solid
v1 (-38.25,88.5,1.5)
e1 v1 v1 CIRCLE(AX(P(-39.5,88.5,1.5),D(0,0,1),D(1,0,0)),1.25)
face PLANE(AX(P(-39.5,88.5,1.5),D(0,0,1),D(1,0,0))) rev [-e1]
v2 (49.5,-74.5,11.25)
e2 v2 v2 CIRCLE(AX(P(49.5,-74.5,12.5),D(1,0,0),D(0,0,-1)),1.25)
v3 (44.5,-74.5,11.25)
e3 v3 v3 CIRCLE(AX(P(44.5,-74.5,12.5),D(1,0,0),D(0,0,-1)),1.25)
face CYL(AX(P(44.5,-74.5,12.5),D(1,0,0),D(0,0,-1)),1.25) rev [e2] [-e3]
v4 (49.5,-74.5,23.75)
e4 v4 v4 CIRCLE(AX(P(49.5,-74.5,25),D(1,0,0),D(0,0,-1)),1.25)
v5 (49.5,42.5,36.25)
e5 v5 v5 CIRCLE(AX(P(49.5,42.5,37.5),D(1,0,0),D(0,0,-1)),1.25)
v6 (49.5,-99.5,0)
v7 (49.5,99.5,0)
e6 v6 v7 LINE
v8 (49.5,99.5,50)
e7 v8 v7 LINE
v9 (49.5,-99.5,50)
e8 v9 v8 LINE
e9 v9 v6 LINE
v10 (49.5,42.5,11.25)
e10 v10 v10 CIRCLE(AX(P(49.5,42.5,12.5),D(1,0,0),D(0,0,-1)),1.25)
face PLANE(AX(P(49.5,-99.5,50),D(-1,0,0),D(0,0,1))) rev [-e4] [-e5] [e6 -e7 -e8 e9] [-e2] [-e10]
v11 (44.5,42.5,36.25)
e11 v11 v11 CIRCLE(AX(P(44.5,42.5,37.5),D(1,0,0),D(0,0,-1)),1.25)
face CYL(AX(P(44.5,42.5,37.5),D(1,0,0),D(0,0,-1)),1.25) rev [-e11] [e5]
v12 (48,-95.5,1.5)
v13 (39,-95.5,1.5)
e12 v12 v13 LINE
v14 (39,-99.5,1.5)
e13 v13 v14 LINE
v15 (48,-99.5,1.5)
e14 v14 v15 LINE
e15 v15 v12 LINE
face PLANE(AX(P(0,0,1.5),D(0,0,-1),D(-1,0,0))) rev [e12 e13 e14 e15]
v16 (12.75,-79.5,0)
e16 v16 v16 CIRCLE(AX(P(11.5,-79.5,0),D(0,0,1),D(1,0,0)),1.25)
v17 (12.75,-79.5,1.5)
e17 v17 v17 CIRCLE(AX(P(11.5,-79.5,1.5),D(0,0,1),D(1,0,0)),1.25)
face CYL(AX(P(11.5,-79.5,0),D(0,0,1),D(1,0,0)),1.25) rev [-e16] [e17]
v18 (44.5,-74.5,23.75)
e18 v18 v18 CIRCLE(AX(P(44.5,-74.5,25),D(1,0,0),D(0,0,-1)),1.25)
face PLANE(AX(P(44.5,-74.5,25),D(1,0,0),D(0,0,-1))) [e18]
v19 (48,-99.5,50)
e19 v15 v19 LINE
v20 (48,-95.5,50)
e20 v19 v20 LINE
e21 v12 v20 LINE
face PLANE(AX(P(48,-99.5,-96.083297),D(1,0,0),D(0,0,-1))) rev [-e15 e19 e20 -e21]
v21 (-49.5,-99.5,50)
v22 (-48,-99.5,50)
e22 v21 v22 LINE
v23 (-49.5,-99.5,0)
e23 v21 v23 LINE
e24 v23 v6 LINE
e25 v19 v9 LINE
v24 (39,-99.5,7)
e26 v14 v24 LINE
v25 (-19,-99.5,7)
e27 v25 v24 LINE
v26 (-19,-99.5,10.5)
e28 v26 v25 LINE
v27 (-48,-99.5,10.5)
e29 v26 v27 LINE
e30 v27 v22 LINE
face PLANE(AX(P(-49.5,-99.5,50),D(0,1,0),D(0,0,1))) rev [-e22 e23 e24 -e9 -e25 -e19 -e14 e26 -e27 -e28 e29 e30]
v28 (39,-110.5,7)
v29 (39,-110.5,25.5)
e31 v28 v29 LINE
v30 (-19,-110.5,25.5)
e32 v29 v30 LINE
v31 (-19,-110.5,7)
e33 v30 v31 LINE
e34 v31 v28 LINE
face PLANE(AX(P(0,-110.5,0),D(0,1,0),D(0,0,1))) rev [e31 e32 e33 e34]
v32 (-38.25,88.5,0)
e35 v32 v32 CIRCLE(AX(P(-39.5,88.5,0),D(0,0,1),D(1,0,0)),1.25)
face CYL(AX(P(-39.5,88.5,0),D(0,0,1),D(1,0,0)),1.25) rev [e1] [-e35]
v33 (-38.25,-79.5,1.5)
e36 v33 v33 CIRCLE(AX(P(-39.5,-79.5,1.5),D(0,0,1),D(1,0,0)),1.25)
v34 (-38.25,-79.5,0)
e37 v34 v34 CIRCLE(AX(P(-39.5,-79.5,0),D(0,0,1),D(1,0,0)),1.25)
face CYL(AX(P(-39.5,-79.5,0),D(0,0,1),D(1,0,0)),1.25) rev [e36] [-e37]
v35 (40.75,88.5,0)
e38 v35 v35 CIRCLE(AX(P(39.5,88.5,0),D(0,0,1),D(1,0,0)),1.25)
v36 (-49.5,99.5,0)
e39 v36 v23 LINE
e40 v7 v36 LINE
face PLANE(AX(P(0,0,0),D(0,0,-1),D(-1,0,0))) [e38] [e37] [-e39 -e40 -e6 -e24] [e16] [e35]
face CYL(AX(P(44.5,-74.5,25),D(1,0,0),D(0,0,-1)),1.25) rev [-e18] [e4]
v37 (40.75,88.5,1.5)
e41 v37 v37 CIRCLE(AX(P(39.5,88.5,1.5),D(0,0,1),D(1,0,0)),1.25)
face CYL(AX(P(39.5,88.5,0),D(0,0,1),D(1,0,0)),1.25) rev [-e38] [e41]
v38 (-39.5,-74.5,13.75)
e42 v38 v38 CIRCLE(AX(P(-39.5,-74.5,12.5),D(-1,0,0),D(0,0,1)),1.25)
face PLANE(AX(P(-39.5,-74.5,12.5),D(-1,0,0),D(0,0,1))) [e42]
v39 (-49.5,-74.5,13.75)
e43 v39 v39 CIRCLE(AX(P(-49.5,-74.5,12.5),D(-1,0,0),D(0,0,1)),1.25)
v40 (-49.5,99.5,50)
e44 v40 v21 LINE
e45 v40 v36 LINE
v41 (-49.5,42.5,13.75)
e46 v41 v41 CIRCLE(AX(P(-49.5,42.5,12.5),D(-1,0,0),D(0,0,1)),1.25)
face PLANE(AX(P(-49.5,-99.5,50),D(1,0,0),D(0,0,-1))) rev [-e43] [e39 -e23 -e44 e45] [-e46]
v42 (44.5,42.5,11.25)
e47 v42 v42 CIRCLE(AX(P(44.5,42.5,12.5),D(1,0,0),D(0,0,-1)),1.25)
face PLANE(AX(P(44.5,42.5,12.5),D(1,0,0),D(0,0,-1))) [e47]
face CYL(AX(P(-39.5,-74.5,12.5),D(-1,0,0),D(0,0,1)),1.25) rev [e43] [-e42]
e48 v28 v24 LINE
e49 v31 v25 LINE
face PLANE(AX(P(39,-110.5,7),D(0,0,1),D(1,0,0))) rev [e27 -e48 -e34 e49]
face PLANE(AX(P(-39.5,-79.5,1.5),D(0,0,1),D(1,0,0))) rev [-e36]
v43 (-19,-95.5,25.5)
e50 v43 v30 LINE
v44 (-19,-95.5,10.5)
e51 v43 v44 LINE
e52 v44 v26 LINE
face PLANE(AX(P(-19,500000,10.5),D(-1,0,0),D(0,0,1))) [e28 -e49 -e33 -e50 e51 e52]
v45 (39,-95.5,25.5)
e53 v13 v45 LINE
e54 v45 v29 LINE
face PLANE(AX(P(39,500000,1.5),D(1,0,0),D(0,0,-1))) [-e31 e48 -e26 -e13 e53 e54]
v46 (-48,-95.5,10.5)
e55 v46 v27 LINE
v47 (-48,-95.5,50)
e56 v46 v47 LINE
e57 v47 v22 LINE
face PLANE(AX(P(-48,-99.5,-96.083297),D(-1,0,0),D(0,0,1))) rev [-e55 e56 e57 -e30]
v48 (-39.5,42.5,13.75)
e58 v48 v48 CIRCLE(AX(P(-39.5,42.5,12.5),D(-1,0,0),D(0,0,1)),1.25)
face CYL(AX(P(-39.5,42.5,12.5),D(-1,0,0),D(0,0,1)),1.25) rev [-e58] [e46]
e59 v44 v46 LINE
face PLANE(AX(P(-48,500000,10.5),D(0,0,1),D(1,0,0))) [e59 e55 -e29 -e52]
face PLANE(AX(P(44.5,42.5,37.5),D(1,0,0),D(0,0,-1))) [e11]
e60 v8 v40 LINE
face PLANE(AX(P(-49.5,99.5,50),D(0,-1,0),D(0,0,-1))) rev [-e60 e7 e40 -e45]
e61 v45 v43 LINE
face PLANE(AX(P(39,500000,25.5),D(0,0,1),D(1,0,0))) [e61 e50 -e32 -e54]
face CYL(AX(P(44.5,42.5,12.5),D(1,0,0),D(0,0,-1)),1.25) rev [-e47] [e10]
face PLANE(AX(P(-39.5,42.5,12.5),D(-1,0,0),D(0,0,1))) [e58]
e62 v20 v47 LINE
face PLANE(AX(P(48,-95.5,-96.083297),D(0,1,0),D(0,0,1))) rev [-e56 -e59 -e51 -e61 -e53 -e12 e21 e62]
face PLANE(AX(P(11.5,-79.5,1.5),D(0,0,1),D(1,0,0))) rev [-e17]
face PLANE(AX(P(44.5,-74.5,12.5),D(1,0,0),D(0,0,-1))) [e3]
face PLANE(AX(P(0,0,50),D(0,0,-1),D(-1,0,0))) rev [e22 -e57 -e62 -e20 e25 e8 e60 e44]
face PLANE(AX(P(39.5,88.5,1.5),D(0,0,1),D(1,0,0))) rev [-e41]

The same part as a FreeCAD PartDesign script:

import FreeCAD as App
import Part
import Sketcher
from FreeCAD import Vector


def add_polygon(sketch, points):
    """Adds a closed chain of lines whose ends are joined by coincident constraints."""
    first, n = sketch.GeometryCount, len(points)
    for a, b in zip(points, points[1:] + points[:1]):
        sketch.addGeometry(Part.LineSegment(App.Vector(*a, 0), App.Vector(*b, 0)), False)
    for i in range(n):
        sketch.addConstraint(Sketcher.Constraint("Coincident", first + i, 2, first + (i + 1) % n, 1))

doc = App.newDocument("Part")
body = doc.addObject("PartDesign::Body", "Body")

# Sketch on XY plane
sketch1 = body.newObject("Sketcher::SketchObject", "Sketch")
sketch1.AttachmentSupport = (doc.getObject("XY_Plane"), [""])
sketch1.MapMode = "FlatFace"
add_polygon(sketch1, [(-50, 100), (-50, -100), (50, -100), (50, 100)])  # lines 0-3
sketch1.addConstraint(Sketcher.Constraint("Vertical", 0))
sketch1.addConstraint(Sketcher.Constraint("Horizontal", 1))
sketch1.addConstraint(Sketcher.Constraint("Vertical", 2))
sketch1.addConstraint(Sketcher.Constraint("Horizontal", 3))
sketch1.addConstraint(Sketcher.Constraint("Symmetric", 0, 2, 2, 2, -1, 1))
sketch1.addConstraint(Sketcher.Constraint("DistanceX", 1, 1, 1, 2, 99.0))
sketch1.addConstraint(Sketcher.Constraint("DistanceY", 0, 2, 0, 1, 199.0))
pad1 = body.newObject("PartDesign::Pad", "Pad")
pad1.Profile = sketch1
pad1.Length = 50

# Sketch on XY plane
sketch2 = body.newObject("Sketcher::SketchObject", "Sketch001")
sketch2.AttachmentSupport = (doc.getObject("XY_Plane"), [""])
sketch2.MapMode = "FlatFace"
sketch2.AttachmentOffset = App.Placement(Vector(0, 0, 50), App.Rotation())
add_polygon(sketch2, [(-48, -95.5), (-48, -99.5), (48, -99.5), (48, -95.5)])  # lines 0-3
sketch2.addConstraint(Sketcher.Constraint("Vertical", 0))
sketch2.addConstraint(Sketcher.Constraint("Horizontal", 1))
sketch2.addConstraint(Sketcher.Constraint("Vertical", 2))
sketch2.addConstraint(Sketcher.Constraint("Horizontal", 3))
sketch2.addConstraint(Sketcher.Constraint("DistanceX", 1, 1, 1, 2, 96.0))
sketch2.addConstraint(Sketcher.Constraint("DistanceY", 0, 2, 0, 1, 4.0))
sketch2.addConstraint(Sketcher.Constraint("DistanceX", 0, 2, -1, 1, 48.0))
sketch2.addConstraint(Sketcher.Constraint("DistanceY", 0, 2, -1, 1, 99.5))
pocket1 = body.newObject("PartDesign::Pocket", "Pocket")
pocket1.Profile = sketch2
pocket1.Length = 48.5

# Sketch on XZ plane
sketch3 = body.newObject("Sketcher::SketchObject", "Sketch002")
sketch3.AttachmentSupport = (doc.getObject("XZ_Plane"), [""])
sketch3.MapMode = "FlatFace"
sketch3.AttachmentOffset = App.Placement(Vector(0, 0, 99.5), App.Rotation())
add_polygon(sketch3, [(-48, 2), (39, 2), (39, 26), (-19, 26), (-19, 10), (-48, 10)])  # lines 0-5
sketch3.addConstraint(Sketcher.Constraint("Horizontal", 0))
sketch3.addConstraint(Sketcher.Constraint("Vertical", 1))
sketch3.addConstraint(Sketcher.Constraint("Horizontal", 2))
sketch3.addConstraint(Sketcher.Constraint("Vertical", 3))
sketch3.addConstraint(Sketcher.Constraint("Horizontal", 4))
sketch3.addConstraint(Sketcher.Constraint("Vertical", 5))
sketch3.addConstraint(Sketcher.Constraint("DistanceX", 0, 1, 0, 2, 87.0))
sketch3.addConstraint(Sketcher.Constraint("DistanceX", 2, 2, 2, 1, 58.0))
sketch3.addConstraint(Sketcher.Constraint("DistanceY", 1, 1, 1, 2, 24.0))
sketch3.addConstraint(Sketcher.Constraint("DistanceY", 3, 2, 3, 1, 15.0))
sketch3.addConstraint(Sketcher.Constraint("DistanceX", -1, 1, 0, 2, 39.0))
sketch3.addConstraint(Sketcher.Constraint("DistanceY", -1, 1, 0, 2, 1.5))
pad2 = body.newObject("PartDesign::Pad", "Pad001")
pad2.Profile = sketch3
pad2.Type = "UpToFirst"
pad2.Reversed = True

# Sketch on XZ plane
sketch4 = body.newObject("Sketcher::SketchObject", "Sketch003")
sketch4.AttachmentSupport = (doc.getObject("XZ_Plane"), [""])
sketch4.MapMode = "FlatFace"
sketch4.AttachmentOffset = App.Placement(Vector(0, 0, 99.5), App.Rotation())
add_polygon(sketch4, [(-19, 26), (-19, 7), (39, 7), (39, 26)])  # lines 0-3
sketch4.addConstraint(Sketcher.Constraint("Vertical", 0))
sketch4.addConstraint(Sketcher.Constraint("Horizontal", 1))
sketch4.addConstraint(Sketcher.Constraint("Vertical", 2))
sketch4.addConstraint(Sketcher.Constraint("Horizontal", 3))
sketch4.addConstraint(Sketcher.Constraint("DistanceX", 1, 1, 1, 2, 58.0))
sketch4.addConstraint(Sketcher.Constraint("DistanceY", 0, 2, 0, 1, 18.5))
sketch4.addConstraint(Sketcher.Constraint("DistanceX", 0, 2, -1, 1, 19.0))
sketch4.addConstraint(Sketcher.Constraint("DistanceY", -1, 1, 0, 2, 7.0))
pad3 = body.newObject("PartDesign::Pad", "Pad002")
pad3.Profile = sketch4
pad3.Length = 11

# Sketch on XY plane
sketch5 = body.newObject("Sketcher::SketchObject", "Sketch004")
sketch5.AttachmentSupport = (doc.getObject("XY_Plane"), [""])
sketch5.MapMode = "FlatFace"
sketch5.AttachmentOffset = App.Placement(Vector(0, 0, 1.5), App.Rotation())
sketch5.addGeometry(Part.Circle(Vector(11.5, -79.5, 0), Vector(0, 0, 1), 1.2), False)
sketch5.addGeometry(Part.Circle(Vector(-39.5, -79.5, 0), Vector(0, 0, 1), 1.2), False)
sketch5.addGeometry(Part.Circle(Vector(-39.5, 88.5, 0), Vector(0, 0, 1), 1.2), False)
sketch5.addGeometry(Part.Circle(Vector(39.5, 88.5, 0), Vector(0, 0, 1), 1.2), False)
sketch5.addConstraint(Sketcher.Constraint("Equal", 0, 1))
sketch5.addConstraint(Sketcher.Constraint("Equal", 1, 2))
sketch5.addConstraint(Sketcher.Constraint("Equal", 2, 3))
sketch5.addConstraint(Sketcher.Constraint("Symmetric", 2, 3, 3, 3, -2))
sketch5.addConstraint(Sketcher.Constraint("Horizontal", 0, 3, 1, 3))
sketch5.addConstraint(Sketcher.Constraint("Vertical", 1, 3, 2, 3))
sketch5.addConstraint(Sketcher.Constraint("Diameter", 0, 2.5))
sketch5.addConstraint(Sketcher.Constraint("DistanceX", 1, 3, 0, 3, 51.0))
sketch5.addConstraint(Sketcher.Constraint("DistanceY", 1, 3, 2, 3, 168.0))
sketch5.addConstraint(Sketcher.Constraint("DistanceX", 2, 3, 3, 3, 79.0))
sketch5.addConstraint(Sketcher.Constraint("DistanceY", 0, 3, -1, 1, 79.5))
pocket2 = body.newObject("PartDesign::Pocket", "Pocket001")
pocket2.Profile = sketch5
pocket2.Type = "ThroughAll"

# Sketch on YZ plane
sketch6 = body.newObject("Sketcher::SketchObject", "Sketch005")
sketch6.AttachmentSupport = (doc.getObject("YZ_Plane"), [""])
sketch6.MapMode = "FlatFace"
sketch6.AttachmentOffset = App.Placement(Vector(0, 0, 49.5), App.Rotation())
sketch6.addGeometry(Part.Circle(Vector(42.5, 37.5, 0), Vector(0, 0, 1), 1.2), False)
sketch6.addGeometry(Part.Circle(Vector(42.5, 12.5, 0), Vector(0, 0, 1), 1.2), False)
sketch6.addGeometry(Part.Circle(Vector(-74.5, 25, 0), Vector(0, 0, 1), 1.2), False)
sketch6.addGeometry(Part.Circle(Vector(-74.5, 12.5, 0), Vector(0, 0, 1), 1.2), False)
sketch6.addConstraint(Sketcher.Constraint("Equal", 0, 1))
sketch6.addConstraint(Sketcher.Constraint("Equal", 1, 2))
sketch6.addConstraint(Sketcher.Constraint("Equal", 2, 3))
sketch6.addConstraint(Sketcher.Constraint("Horizontal", 1, 3, 3, 3))
sketch6.addConstraint(Sketcher.Constraint("Vertical", 0, 3, 1, 3))
sketch6.addConstraint(Sketcher.Constraint("Vertical", 2, 3, 3, 3))
sketch6.addConstraint(Sketcher.Constraint("Diameter", 0, 2.5))
sketch6.addConstraint(Sketcher.Constraint("DistanceY", -1, 1, 2, 3, 25.0))
sketch6.addConstraint(Sketcher.Constraint("DistanceY", 1, 3, 0, 3, 25.0))
sketch6.addConstraint(Sketcher.Constraint("DistanceX", 2, 3, 0, 3, 117.0))
sketch6.addConstraint(Sketcher.Constraint("DistanceX", -1, 1, 0, 3, 42.5))
sketch6.addConstraint(Sketcher.Constraint("DistanceY", -1, 1, 0, 3, 37.5))
pocket3 = body.newObject("PartDesign::Pocket", "Pocket002")
pocket3.Profile = sketch6
pocket3.Length = 5

# Sketch on YZ plane
sketch7 = body.newObject("Sketcher::SketchObject", "Sketch006")
sketch7.AttachmentSupport = (doc.getObject("YZ_Plane"), [""])
sketch7.MapMode = "FlatFace"
sketch7.AttachmentOffset = App.Placement(Vector(0, 0, -39.5), App.Rotation())
sketch7.addGeometry(Part.Circle(Vector(-74.5, 12.5, 0), Vector(0, 0, 1), 1.2), False)
sketch7.addGeometry(Part.Circle(Vector(42.5, 12.5, 0), Vector(0, 0, 1), 1.2), False)
sketch7.addConstraint(Sketcher.Constraint("Equal", 0, 1))
sketch7.addConstraint(Sketcher.Constraint("Horizontal", 0, 3, 1, 3))
sketch7.addConstraint(Sketcher.Constraint("Diameter", 0, 2.5))
sketch7.addConstraint(Sketcher.Constraint("DistanceX", 0, 3, 1, 3, 117.0))
sketch7.addConstraint(Sketcher.Constraint("DistanceX", 0, 3, -1, 1, 74.5))
sketch7.addConstraint(Sketcher.Constraint("DistanceY", -1, 1, 0, 3, 12.5))
pocket4 = body.newObject("PartDesign::Pocket", "Pocket003")
pocket4.Profile = sketch7
pocket4.Length = 10

doc.recompute()
